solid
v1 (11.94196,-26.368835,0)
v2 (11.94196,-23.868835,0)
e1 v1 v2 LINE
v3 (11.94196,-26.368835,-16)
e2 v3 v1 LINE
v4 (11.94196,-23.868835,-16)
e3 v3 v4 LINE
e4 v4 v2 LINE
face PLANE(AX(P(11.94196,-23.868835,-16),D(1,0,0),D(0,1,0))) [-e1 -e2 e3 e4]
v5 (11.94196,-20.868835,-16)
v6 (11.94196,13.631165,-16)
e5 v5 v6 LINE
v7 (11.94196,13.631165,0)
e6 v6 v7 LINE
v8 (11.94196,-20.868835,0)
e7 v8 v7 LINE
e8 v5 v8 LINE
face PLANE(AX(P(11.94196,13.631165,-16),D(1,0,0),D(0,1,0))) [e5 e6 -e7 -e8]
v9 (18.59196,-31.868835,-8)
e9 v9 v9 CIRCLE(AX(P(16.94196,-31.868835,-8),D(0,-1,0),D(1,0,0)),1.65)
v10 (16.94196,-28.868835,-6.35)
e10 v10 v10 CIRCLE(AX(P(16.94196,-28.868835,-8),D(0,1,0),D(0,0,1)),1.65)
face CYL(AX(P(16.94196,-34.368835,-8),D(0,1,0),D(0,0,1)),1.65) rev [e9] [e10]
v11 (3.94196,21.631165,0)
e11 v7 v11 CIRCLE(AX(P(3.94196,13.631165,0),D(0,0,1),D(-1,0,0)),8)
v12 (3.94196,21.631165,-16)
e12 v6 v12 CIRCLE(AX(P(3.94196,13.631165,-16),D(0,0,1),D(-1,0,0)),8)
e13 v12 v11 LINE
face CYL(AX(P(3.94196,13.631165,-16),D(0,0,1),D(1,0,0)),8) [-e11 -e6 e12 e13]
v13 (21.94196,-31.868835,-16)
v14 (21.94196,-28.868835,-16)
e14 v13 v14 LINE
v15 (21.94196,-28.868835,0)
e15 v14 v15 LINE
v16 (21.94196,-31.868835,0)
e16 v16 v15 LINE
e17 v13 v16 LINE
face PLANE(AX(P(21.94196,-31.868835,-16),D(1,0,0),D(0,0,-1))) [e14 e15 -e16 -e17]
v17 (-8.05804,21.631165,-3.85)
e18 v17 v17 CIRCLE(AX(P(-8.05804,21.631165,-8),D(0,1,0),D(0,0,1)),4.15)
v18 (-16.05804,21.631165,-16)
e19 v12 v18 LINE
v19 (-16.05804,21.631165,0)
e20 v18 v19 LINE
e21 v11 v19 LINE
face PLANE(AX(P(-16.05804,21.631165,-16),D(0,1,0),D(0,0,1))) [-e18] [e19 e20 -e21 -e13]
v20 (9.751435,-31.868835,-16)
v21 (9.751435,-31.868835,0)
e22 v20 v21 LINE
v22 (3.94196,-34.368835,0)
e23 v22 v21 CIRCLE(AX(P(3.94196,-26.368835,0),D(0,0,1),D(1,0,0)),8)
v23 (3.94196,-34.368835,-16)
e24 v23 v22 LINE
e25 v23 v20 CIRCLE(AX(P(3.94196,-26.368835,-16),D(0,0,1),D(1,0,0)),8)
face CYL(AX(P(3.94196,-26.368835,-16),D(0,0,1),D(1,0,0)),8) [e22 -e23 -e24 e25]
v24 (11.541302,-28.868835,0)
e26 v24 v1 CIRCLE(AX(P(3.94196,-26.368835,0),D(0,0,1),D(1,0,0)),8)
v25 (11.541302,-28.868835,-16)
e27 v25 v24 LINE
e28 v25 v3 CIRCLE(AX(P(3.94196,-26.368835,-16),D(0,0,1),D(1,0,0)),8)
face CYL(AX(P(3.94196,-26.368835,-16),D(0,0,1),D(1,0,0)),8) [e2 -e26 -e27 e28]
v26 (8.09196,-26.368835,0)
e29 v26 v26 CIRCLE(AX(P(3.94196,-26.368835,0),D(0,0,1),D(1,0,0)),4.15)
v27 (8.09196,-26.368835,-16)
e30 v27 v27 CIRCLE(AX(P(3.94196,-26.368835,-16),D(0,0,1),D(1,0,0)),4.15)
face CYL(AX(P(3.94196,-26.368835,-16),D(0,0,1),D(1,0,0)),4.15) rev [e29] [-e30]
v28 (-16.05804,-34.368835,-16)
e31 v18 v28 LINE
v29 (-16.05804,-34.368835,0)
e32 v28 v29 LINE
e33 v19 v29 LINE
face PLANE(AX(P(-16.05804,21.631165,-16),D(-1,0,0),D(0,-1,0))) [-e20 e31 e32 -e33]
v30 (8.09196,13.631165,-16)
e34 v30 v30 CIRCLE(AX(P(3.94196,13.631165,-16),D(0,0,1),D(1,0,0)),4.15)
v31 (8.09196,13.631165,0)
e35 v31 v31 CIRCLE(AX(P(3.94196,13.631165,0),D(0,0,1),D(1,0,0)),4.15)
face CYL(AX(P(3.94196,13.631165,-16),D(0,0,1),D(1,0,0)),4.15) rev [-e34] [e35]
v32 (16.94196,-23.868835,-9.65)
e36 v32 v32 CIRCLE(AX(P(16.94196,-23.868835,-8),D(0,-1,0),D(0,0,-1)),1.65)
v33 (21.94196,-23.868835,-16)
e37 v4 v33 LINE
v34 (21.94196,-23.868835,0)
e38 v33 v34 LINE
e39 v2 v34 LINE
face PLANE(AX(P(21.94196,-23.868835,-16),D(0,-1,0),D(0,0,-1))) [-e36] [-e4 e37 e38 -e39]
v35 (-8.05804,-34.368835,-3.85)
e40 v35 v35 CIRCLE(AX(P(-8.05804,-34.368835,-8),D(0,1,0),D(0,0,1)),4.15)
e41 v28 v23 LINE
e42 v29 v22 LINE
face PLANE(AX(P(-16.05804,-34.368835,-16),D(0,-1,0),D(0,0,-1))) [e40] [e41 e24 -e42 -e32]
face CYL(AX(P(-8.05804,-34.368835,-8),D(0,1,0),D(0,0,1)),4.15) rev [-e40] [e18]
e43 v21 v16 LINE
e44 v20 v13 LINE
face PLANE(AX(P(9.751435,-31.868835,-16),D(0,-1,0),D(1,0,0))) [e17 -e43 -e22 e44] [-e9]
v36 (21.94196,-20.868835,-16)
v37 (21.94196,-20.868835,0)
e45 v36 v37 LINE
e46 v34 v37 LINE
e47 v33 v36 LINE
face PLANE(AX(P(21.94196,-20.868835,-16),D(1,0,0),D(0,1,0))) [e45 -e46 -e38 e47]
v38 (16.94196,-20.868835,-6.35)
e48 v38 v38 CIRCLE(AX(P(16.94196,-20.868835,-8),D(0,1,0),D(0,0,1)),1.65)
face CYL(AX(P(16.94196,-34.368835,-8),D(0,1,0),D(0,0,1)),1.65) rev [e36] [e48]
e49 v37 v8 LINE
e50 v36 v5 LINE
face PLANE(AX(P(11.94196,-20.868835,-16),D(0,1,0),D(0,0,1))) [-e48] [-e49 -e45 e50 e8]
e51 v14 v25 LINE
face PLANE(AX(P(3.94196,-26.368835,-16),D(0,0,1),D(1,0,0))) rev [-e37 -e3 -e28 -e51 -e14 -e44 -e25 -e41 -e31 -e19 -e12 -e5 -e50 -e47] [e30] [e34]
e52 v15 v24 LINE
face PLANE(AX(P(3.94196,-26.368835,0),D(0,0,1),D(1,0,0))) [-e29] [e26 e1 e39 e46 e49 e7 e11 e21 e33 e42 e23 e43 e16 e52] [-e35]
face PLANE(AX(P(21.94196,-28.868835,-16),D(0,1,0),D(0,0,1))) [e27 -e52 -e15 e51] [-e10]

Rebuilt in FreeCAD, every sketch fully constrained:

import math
import FreeCAD as App
import Part
import Sketcher
from FreeCAD import Vector

doc = App.newDocument("Part")
body = doc.addObject("PartDesign::Body", "Body")

# Sketch on XY plane
sketch1 = body.newObject("Sketcher::SketchObject", "Sketch")
sketch1.AttachmentSupport = (doc.getObject("XY_Plane"), [""])
sketch1.MapMode = "FlatFace"
sketch1.addGeometry(Part.LineSegment(Vector(21.9, -20.9, 0), Vector(11.9, -20.9, 0)), False)
sketch1.addGeometry(Part.LineSegment(Vector(11.9, -20.9, 0), Vector(11.9, 13.6, 0)), False)
sketch1.addGeometry(Part.ArcOfCircle(Part.Circle(Vector(3.9, 13.6, 0), Vector(0, 0, 1), 8), math.radians(0), math.radians(90)), False)
sketch1.addGeometry(Part.LineSegment(Vector(3.9, 21.6, 0), Vector(-16.1, 21.6, 0)), False)
sketch1.addGeometry(Part.LineSegment(Vector(-16.1, 21.6, 0), Vector(-16.1, -34.4, 0)), False)
sketch1.addGeometry(Part.LineSegment(Vector(-16.1, -34.4, 0), Vector(3.9, -34.4, 0)), False)
sketch1.addGeometry(Part.ArcOfCircle(Part.Circle(Vector(3.9, -26.4, 0), Vector(0, 0, 1), 8), math.radians(-90), math.radians(-43)), False)
sketch1.addGeometry(Part.LineSegment(Vector(9.8, -31.9, 0), Vector(21.9, -31.9, 0)), False)
sketch1.addGeometry(Part.LineSegment(Vector(21.9, -31.9, 0), Vector(21.9, -28.9, 0)), False)
sketch1.addGeometry(Part.LineSegment(Vector(21.9, -28.9, 0), Vector(11.5, -28.9, 0)), False)
sketch1.addGeometry(Part.ArcOfCircle(Part.Circle(Vector(3.9, -26.4, 0), Vector(0, 0, 1), 8), math.radians(-18.21), math.radians(0)), False)
sketch1.addGeometry(Part.LineSegment(Vector(11.9, -26.4, 0), Vector(11.9, -23.9, 0)), False)
sketch1.addGeometry(Part.LineSegment(Vector(11.9, -23.9, 0), Vector(21.9, -23.9, 0)), False)
sketch1.addGeometry(Part.LineSegment(Vector(21.9, -23.9, 0), Vector(21.9, -20.9, 0)), False)
sketch1.addGeometry(Part.Circle(Vector(3.9, -26.4, 0), Vector(0, 0, 1), 4.2), False)
sketch1.addGeometry(Part.Circle(Vector(3.9, 13.6, 0), Vector(0, 0, 1), 4.2), False)
sketch1.addConstraint(Sketcher.Constraint("Coincident", 0, 2, 1, 1))
sketch1.addConstraint(Sketcher.Constraint("Tangent", 1, 2, 2, 1))
sketch1.addConstraint(Sketcher.Constraint("Tangent", 2, 2, 3, 1))
sketch1.addConstraint(Sketcher.Constraint("Coincident", 3, 2, 4, 1))
sketch1.addConstraint(Sketcher.Constraint("Coincident", 4, 2, 5, 1))
sketch1.addConstraint(Sketcher.Constraint("Tangent", 5, 2, 6, 1))
sketch1.addConstraint(Sketcher.Constraint("Coincident", 6, 2, 7, 1))
sketch1.addConstraint(Sketcher.Constraint("Coincident", 7, 2, 8, 1))
sketch1.addConstraint(Sketcher.Constraint("Coincident", 8, 2, 9, 1))
sketch1.addConstraint(Sketcher.Constraint("Coincident", 9, 2, 10, 1))
sketch1.addConstraint(Sketcher.Constraint("Tangent", 10, 2, 11, 1))
sketch1.addConstraint(Sketcher.Constraint("Coincident", 11, 2, 12, 1))
sketch1.addConstraint(Sketcher.Constraint("Coincident", 12, 2, 13, 1))
sketch1.addConstraint(Sketcher.Constraint("Coincident", 13, 2, 0, 1))
sketch1.addConstraint(Sketcher.Constraint("Horizontal", 0))
sketch1.addConstraint(Sketcher.Constraint("Vertical", 1))
sketch1.addConstraint(Sketcher.Constraint("Horizontal", 3))
sketch1.addConstraint(Sketcher.Constraint("Vertical", 4))
sketch1.addConstraint(Sketcher.Constraint("Horizontal", 5))
sketch1.addConstraint(Sketcher.Constraint("Horizontal", 7))
sketch1.addConstraint(Sketcher.Constraint("Vertical", 8))
sketch1.addConstraint(Sketcher.Constraint("Horizontal", 9))
sketch1.addConstraint(Sketcher.Constraint("Vertical", 11))
sketch1.addConstraint(Sketcher.Constraint("Horizontal", 12))
sketch1.addConstraint(Sketcher.Constraint("Vertical", 13))
sketch1.addConstraint(Sketcher.Constraint("Coincident", 10, 3, 6, 3))
sketch1.addConstraint(Sketcher.Constraint("Coincident", 14, 3, 6, 3))
sketch1.addConstraint(Sketcher.Constraint("Coincident", 15, 3, 2, 3))
sketch1.addConstraint(Sketcher.Constraint("Equal", 2, 6))
sketch1.addConstraint(Sketcher.Constraint("Equal", 6, 10))
sketch1.addConstraint(Sketcher.Constraint("Equal", 14, 15))
sketch1.addConstraint(Sketcher.Constraint("Vertical", 2, 3, 6, 3))
sketch1.addConstraint(Sketcher.Constraint("Vertical", 8, 2, 12, 2))
sketch1.addConstraint(Sketcher.Constraint("Equal", 8, 13))
sketch1.addConstraint(Sketcher.Constraint("Radius", 2, 8.0))
sketch1.addConstraint(Sketcher.Constraint("Diameter", 14, 8.3))
sketch1.addConstraint(Sketcher.Constraint("DistanceX", 0, 2, 0, 1, 10.0))
sketch1.addConstraint(Sketcher.Constraint("DistanceX", 3, 2, 3, 1, 20.0))
sketch1.addConstraint(Sketcher.Constraint("DistanceY", 4, 2, 4, 1, 56.0))
sketch1.addConstraint(Sketcher.Constraint("DistanceY", 8, 1, 8, 2, 3.0))
sketch1.addConstraint(Sketcher.Constraint("DistanceY", 1, 1, 1, 2, 34.5))
sketch1.addConstraint(Sketcher.Constraint("DistanceY", 6, 2, 0, 2, 11.0))
sketch1.addConstraint(Sketcher.Constraint("DistanceX", -1, 1, 9, 2, 11.541302))
sketch1.addConstraint(Sketcher.Constraint("DistanceY", -1, 1, 2, 3, 13.631165))
pad1 = body.newObject("PartDesign::Pad", "Pad")
pad1.Profile = sketch1
pad1.Length = 16
pad1.Reversed = True

# Sketch on XZ plane
sketch2 = body.newObject("Sketcher::SketchObject", "Sketch001")
sketch2.AttachmentSupport = (doc.getObject("XZ_Plane"), [""])
sketch2.MapMode = "FlatFace"
sketch2.AttachmentOffset = App.Placement(Vector(0, 0, -21.631165), App.Rotation())
sketch2.addGeometry(Part.Circle(Vector(-8.1, -8, 0), Vector(0, 0, 1), 4.2), False)
sketch2.addConstraint(Sketcher.Constraint("Diameter", 0, 8.3))
sketch2.addConstraint(Sketcher.Constraint("DistanceY", 0, 3, -1, 1, 8.0))
sketch2.addConstraint(Sketcher.Constraint("DistanceX", 0, 3, -1, 1, 8.05804))
pocket1 = body.newObject("PartDesign::Pocket", "Pocket")
pocket1.Profile = sketch2
pocket1.Type = "ThroughAll"
pocket1.Reversed = True

# Sketch on XZ plane
sketch3 = body.newObject("Sketcher::SketchObject", "Sketch002")
sketch3.AttachmentSupport = (doc.getObject("XZ_Plane"), [""])
sketch3.MapMode = "FlatFace"
sketch3.AttachmentOffset = App.Placement(Vector(0, 0, 20.868835), App.Rotation())
sketch3.addGeometry(Part.Circle(Vector(16.9, -8, 0), Vector(0, 0, 1), 1.6), False)
sketch3.addConstraint(Sketcher.Constraint("Diameter", 0, 3.3))
sketch3.addConstraint(Sketcher.Constraint("DistanceY", 0, 3, -1, 1, 8.0))
sketch3.addConstraint(Sketcher.Constraint("DistanceX", -1, 1, 0, 3, 16.94196))
pocket2 = body.newObject("PartDesign::Pocket", "Pocket001")
pocket2.Profile = sketch3
pocket2.Type = "ThroughAll"
pocket2.Reversed = True

doc.recompute()
